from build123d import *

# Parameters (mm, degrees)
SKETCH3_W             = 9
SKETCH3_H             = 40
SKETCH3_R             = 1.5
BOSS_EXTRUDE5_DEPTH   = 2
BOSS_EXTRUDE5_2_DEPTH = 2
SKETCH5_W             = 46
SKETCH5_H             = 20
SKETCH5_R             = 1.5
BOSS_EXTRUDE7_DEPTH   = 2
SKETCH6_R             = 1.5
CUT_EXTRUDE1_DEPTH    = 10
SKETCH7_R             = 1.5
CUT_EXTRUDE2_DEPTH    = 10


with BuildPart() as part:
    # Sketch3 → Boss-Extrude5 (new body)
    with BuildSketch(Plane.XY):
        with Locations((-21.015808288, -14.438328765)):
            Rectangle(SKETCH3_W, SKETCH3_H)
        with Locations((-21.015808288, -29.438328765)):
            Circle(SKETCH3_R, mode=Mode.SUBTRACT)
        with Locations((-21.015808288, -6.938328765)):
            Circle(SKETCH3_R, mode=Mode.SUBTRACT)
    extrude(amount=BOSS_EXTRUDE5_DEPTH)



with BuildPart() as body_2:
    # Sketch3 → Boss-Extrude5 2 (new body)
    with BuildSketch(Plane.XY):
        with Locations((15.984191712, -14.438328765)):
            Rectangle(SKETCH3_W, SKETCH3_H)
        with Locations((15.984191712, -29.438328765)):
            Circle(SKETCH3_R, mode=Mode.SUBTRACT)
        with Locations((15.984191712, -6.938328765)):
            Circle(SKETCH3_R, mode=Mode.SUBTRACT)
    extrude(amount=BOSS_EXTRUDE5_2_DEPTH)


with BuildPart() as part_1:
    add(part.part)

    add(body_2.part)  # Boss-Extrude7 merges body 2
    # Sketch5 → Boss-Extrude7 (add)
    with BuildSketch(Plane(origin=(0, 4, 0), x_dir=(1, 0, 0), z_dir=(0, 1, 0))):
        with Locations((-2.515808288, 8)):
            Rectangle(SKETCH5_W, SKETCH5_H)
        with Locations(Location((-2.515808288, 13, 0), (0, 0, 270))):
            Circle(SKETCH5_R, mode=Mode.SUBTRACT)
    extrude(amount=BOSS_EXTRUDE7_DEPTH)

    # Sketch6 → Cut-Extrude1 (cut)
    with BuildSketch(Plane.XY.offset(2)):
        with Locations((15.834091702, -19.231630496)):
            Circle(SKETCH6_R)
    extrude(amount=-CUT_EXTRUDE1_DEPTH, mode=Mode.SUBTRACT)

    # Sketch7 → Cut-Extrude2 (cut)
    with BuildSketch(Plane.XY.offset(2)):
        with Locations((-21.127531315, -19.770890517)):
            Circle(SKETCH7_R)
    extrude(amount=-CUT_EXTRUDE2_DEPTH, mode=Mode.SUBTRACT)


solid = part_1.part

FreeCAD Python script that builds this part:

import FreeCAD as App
import Part
import Sketcher


def add_polygon(sketch, points):
    """Adds a closed chain of lines whose ends are joined by coincident constraints."""
    first, n = sketch.GeometryCount, len(points)
    for a, b in zip(points, points[1:] + points[:1]):
        sketch.addGeometry(Part.LineSegment(App.Vector(*a, 0), App.Vector(*b, 0)), False)
    for i in range(n):
        sketch.addConstraint(Sketcher.Constraint("Coincident", first + i, 2, first + (i + 1) % n, 1))

doc = App.newDocument("Part")
body = doc.addObject("PartDesign::Body", "Body")

sketch1 = body.newObject("Sketcher::SketchObject", "Sketch")
sketch1.AttachmentSupport = (doc.getObject("XY_Plane"), [""])
sketch1.MapMode = "FlatFace"
add_polygon(sketch1, [(-25.5, 5.6), (-25.5, -34.4), (-16.5, -34.4), (-16.5, 5.6)])
sketch1.addGeometry(Part.Circle(App.Vector(-21, -29.4, 0), App.Vector(0, 0, 1), 1.5), False)
sketch1.addGeometry(Part.Circle(App.Vector(-21, -6.9, 0), App.Vector(0, 0, 1), 1.5), False)
sketch1.addConstraint(Sketcher.Constraint("Vertical", 0))
sketch1.addConstraint(Sketcher.Constraint("Horizontal", 1))
sketch1.addConstraint(Sketcher.Constraint("Vertical", 2))
sketch1.addConstraint(Sketcher.Constraint("Horizontal", 3))
sketch1.addConstraint(Sketcher.Constraint("Equal", 4, 5))
sketch1.addConstraint(Sketcher.Constraint("Vertical", 4, 3, 5, 3))
sketch1.addConstraint(Sketcher.Constraint("Diameter", 4, 3.0))
sketch1.addConstraint(Sketcher.Constraint("DistanceX", 1, 1, 1, 2, 9.0))
sketch1.addConstraint(Sketcher.Constraint("DistanceY", 0, 2, 0, 1, 40.0))
sketch1.addConstraint(Sketcher.Constraint("DistanceY", 0, 2, 4, 3, 5.0))
sketch1.addConstraint(Sketcher.Constraint("DistanceY", 4, 3, 5, 3, 22.5))
sketch1.addConstraint(Sketcher.Constraint("DistanceX", 0, 2, 4, 3, 4.5))
sketch1.addConstraint(Sketcher.Constraint("DistanceX", 4, 3, -1, 1, 21.015808))
sketch1.addConstraint(Sketcher.Constraint("DistanceY", 4, 3, -1, 1, 29.438329))
pad1 = body.newObject("PartDesign::Pad", "Pad")
pad1.Profile = sketch1
pad1.Length = 2
body2 = doc.addObject("PartDesign::Body", "Body001")

sketch2 = body2.newObject("Sketcher::SketchObject", "Sketch001")
sketch2.AttachmentSupport = (doc.getObject("XY_Plane001"), [""])
sketch2.MapMode = "FlatFace"
add_polygon(sketch2, [(11.5, 5.6), (11.5, -34.4), (20.5, -34.4), (20.5, 5.6)])
sketch2.addGeometry(Part.Circle(App.Vector(16, -29.4, 0), App.Vector(0, 0, 1), 1.5), False)
sketch2.addGeometry(Part.Circle(App.Vector(16, -6.9, 0), App.Vector(0, 0, 1), 1.5), False)
sketch2.addConstraint(Sketcher.Constraint("Vertical", 0))
sketch2.addConstraint(Sketcher.Constraint("Horizontal", 1))
sketch2.addConstraint(Sketcher.Constraint("Vertical", 2))
sketch2.addConstraint(Sketcher.Constraint("Horizontal", 3))
sketch2.addConstraint(Sketcher.Constraint("Equal", 4, 5))
sketch2.addConstraint(Sketcher.Constraint("Vertical", 4, 3, 5, 3))
sketch2.addConstraint(Sketcher.Constraint("Diameter", 4, 3.0))
sketch2.addConstraint(Sketcher.Constraint("DistanceX", 1, 1, 1, 2, 9.0))
sketch2.addConstraint(Sketcher.Constraint("DistanceY", 0, 2, 0, 1, 40.0))
sketch2.addConstraint(Sketcher.Constraint("DistanceY", 0, 2, 4, 3, 5.0))
sketch2.addConstraint(Sketcher.Constraint("DistanceY", 4, 3, 5, 3, 22.5))
sketch2.addConstraint(Sketcher.Constraint("DistanceX", 0, 2, 4, 3, 4.5))
sketch2.addConstraint(Sketcher.Constraint("DistanceX", -1, 1, 4, 3, 15.984192))
sketch2.addConstraint(Sketcher.Constraint("DistanceY", 4, 3, -1, 1, 29.438329))
pad2 = body2.newObject("PartDesign::Pad", "Pad001")
pad2.Profile = sketch2
pad2.Length = 2
body.AllowCompound = True
doc.recompute()

boolean = body.newObject("PartDesign::Boolean", "Boolean")
boolean.Type = "Fuse"
boolean.addObjects([body2])

sketch3 = body.newObject("Sketcher::SketchObject", "Sketch002")
sketch3.AttachmentSupport = (doc.getObject("XZ_Plane"), [""])
sketch3.MapMode = "FlatFace"
sketch3.AttachmentOffset = App.Placement(App.Vector(0, 0, -4), App.Rotation())
add_polygon(sketch3, [(-25.5, -18), (-25.5, 2), (20.5, 2), (20.5, -18)])
sketch3.addGeometry(Part.Circle(App.Vector(-2.5, -13, 0), App.Vector(0, 0, 1), 1.5), False)
sketch3.addConstraint(Sketcher.Constraint("Vertical", 0))
sketch3.addConstraint(Sketcher.Constraint("Horizontal", 1))
sketch3.addConstraint(Sketcher.Constraint("Vertical", 2))
sketch3.addConstraint(Sketcher.Constraint("Horizontal", 3))
sketch3.addConstraint(Sketcher.Constraint("Diameter", 4, 3.0))
sketch3.addConstraint(Sketcher.Constraint("DistanceX", 1, 1, 1, 2, 46.0))
sketch3.addConstraint(Sketcher.Constraint("DistanceY", 0, 1, 0, 2, 20.0))
sketch3.addConstraint(Sketcher.Constraint("DistanceY", 4, 3, -1, 1, 13.0))
sketch3.addConstraint(Sketcher.Constraint("DistanceY", -1, 1, 0, 2, 2.0))
sketch3.addConstraint(Sketcher.Constraint("DistanceX", 0, 2, 4, 3, 23.0))
sketch3.addConstraint(Sketcher.Constraint("DistanceX", 4, 3, -1, 1, 2.515808))
pad3 = body.newObject("PartDesign::Pad", "Pad002")
pad3.Profile = sketch3
pad3.Length = 2
pad3.Reversed = True

sketch4 = body.newObject("Sketcher::SketchObject", "Sketch003")
sketch4.AttachmentSupport = (doc.getObject("XY_Plane"), [""])
sketch4.MapMode = "FlatFace"
sketch4.AttachmentOffset = App.Placement(App.Vector(0, 0, 2), App.Rotation())
sketch4.addGeometry(Part.Circle(App.Vector(15.8, -19.2, 0), App.Vector(0, 0, 1), 1.5), False)
sketch4.addConstraint(Sketcher.Constraint("Diameter", 0, 3.0))
sketch4.addConstraint(Sketcher.Constraint("DistanceX", -1, 1, 0, 3, 15.834092))
sketch4.addConstraint(Sketcher.Constraint("DistanceY", 0, 3, -1, 1, 19.23163))
pocket1 = body.newObject("PartDesign::Pocket", "Pocket")
pocket1.Profile = sketch4
pocket1.Length = 10

sketch5 = body.newObject("Sketcher::SketchObject", "Sketch004")
sketch5.AttachmentSupport = (doc.getObject("XY_Plane"), [""])
sketch5.MapMode = "FlatFace"
sketch5.AttachmentOffset = App.Placement(App.Vector(0, 0, 2), App.Rotation())
sketch5.addGeometry(Part.Circle(App.Vector(-21.1, -19.8, 0), App.Vector(0, 0, 1), 1.5), False)
sketch5.addConstraint(Sketcher.Constraint("Diameter", 0, 3.0))
sketch5.addConstraint(Sketcher.Constraint("DistanceX", 0, 3, -1, 1, 21.127531))
sketch5.addConstraint(Sketcher.Constraint("DistanceY", 0, 3, -1, 1, 19.770891))
pocket2 = body.newObject("PartDesign::Pocket", "Pocket001")
pocket2.Profile = sketch5
pocket2.Length = 10

doc.recompute()
